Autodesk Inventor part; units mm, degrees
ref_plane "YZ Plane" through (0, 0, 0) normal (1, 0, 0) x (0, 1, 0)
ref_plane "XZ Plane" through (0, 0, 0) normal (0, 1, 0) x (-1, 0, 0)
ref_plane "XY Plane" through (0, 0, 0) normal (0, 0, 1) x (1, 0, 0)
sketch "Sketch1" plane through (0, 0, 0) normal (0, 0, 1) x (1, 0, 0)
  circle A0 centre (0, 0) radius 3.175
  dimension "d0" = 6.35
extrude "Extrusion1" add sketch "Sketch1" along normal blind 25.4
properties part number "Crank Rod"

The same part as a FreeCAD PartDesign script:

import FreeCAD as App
import Part
import Sketcher

V = App.Vector
Q = App.Units.Quantity

doc = App.newDocument("Part")
body = doc.addObject("PartDesign::Body", "Body")

sketch1 = body.newObject("Sketcher::SketchObject", "Sketch")
sketch1.AttachmentSupport = (doc.getObject("XY_Plane"), [""])
sketch1.MapMode = "FlatFace"
sketch1.addGeometry(Part.Circle(V(0, 0, 0), V(0, 0, 1), 3.175), False)
sketch1.addConstraint(Sketcher.Constraint("Coincident", 0, 3, -1, 1))
sketch1.addConstraint(Sketcher.Constraint("Diameter", 0, Q("0.25 in")))
pad1 = body.newObject("PartDesign::Pad", "Pad")
pad1.Profile = sketch1
pad1.Length = Q("1 in")

doc.recompute()
